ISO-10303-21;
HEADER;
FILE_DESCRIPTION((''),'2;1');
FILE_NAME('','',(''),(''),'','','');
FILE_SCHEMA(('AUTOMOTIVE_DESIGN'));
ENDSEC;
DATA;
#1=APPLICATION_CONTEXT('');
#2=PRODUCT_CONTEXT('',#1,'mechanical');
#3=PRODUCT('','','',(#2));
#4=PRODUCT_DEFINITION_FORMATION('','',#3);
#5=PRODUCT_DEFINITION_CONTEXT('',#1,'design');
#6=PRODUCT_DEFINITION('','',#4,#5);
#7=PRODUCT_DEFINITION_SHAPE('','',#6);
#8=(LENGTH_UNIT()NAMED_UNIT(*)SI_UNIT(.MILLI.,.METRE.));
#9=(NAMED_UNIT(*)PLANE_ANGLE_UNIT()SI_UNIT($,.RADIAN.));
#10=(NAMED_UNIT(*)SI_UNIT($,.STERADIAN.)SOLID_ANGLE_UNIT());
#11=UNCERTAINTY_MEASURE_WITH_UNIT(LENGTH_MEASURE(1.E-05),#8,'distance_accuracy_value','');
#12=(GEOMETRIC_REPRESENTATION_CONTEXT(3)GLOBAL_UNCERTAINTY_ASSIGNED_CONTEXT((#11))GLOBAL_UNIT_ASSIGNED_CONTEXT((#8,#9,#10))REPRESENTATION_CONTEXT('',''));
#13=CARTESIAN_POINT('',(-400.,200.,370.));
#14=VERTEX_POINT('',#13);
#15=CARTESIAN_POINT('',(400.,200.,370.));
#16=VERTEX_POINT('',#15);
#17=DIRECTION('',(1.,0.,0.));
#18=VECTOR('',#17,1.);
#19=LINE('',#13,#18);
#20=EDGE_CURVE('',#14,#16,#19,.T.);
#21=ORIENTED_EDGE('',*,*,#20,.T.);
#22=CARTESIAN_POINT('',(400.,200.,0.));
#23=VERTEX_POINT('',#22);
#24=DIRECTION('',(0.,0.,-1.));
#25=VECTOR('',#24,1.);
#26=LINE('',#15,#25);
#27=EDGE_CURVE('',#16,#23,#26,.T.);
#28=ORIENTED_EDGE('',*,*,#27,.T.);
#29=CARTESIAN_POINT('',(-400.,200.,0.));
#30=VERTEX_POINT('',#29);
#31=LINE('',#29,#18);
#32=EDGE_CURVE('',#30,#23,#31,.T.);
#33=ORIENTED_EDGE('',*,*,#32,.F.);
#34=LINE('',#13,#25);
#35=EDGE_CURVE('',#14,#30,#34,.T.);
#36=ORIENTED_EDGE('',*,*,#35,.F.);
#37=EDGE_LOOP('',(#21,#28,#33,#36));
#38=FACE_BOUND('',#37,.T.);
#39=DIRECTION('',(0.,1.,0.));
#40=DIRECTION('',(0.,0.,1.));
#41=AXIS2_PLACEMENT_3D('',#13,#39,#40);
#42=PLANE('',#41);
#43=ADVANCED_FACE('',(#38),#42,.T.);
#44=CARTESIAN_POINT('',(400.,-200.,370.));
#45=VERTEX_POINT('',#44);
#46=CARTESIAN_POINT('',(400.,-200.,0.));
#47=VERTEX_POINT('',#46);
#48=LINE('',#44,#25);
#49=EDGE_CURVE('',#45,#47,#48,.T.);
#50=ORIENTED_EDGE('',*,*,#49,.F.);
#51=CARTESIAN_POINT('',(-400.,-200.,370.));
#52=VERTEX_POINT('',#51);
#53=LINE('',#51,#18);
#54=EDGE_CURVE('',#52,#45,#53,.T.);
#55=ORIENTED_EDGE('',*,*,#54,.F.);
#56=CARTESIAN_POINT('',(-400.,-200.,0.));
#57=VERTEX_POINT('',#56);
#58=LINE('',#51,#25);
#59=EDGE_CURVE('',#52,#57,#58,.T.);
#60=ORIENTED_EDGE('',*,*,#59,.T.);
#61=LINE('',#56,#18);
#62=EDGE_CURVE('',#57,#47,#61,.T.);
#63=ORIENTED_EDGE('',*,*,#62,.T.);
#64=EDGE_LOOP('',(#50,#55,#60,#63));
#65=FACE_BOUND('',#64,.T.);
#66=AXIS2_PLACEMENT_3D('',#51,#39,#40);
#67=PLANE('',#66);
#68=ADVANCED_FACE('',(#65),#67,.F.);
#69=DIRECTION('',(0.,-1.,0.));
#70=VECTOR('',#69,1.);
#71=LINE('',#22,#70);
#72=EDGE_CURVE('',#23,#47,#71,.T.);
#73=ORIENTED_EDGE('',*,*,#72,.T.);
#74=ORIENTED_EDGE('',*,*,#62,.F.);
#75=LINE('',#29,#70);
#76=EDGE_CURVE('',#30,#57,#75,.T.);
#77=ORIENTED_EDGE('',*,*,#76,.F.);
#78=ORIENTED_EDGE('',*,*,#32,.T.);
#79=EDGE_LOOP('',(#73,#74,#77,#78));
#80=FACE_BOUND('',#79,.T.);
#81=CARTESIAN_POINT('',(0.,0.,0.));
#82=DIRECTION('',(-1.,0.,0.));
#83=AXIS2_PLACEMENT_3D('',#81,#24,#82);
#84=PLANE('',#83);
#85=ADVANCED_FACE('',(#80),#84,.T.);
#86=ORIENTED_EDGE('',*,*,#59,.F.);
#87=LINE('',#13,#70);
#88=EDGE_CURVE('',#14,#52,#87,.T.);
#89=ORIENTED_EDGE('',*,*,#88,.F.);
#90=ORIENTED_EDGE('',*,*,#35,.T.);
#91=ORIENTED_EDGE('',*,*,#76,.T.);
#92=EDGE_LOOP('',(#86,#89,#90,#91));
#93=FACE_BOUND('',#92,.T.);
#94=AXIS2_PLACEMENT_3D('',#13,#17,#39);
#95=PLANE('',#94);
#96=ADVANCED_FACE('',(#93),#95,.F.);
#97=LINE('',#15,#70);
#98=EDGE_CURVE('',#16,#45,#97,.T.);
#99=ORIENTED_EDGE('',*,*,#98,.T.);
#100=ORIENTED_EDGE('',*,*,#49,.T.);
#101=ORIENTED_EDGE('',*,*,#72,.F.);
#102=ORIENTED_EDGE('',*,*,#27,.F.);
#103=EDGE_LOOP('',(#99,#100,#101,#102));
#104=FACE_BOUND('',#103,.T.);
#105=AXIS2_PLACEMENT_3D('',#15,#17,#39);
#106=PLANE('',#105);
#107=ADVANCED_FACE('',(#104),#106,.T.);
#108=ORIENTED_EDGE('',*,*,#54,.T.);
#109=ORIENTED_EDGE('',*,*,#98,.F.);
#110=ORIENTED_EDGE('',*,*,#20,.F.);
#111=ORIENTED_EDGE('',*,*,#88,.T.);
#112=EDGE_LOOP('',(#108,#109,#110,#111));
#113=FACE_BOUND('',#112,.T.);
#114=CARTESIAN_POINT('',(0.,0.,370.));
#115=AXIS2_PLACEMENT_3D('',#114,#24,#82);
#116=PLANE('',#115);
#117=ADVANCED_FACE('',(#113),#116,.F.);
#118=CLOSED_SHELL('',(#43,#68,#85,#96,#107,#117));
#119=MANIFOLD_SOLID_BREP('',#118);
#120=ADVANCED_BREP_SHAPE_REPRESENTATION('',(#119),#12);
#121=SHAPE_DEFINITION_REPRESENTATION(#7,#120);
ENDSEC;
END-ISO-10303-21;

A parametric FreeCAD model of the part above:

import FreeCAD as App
import Part
import Sketcher
Q = App.Units.Quantity

doc = App.newDocument("Part")
body = doc.addObject("PartDesign::Body", "Body")

# Sketch on XY plane
sketch1 = body.newObject("Sketcher::SketchObject", "Sketch")
sketch1.AttachmentSupport = (doc.getObject("XY_Plane"), [""])
sketch1.MapMode = "FlatFace"
sketch1.addGeometry(Part.LineSegment(App.Vector(-400, 200, 0), App.Vector(-400, -200, 0)), False)
sketch1.addGeometry(Part.LineSegment(App.Vector(-400, -200, 0), App.Vector(400, -200, 0)), False)
sketch1.addGeometry(Part.LineSegment(App.Vector(400, -200, 0), App.Vector(400, 200, 0)), False)
sketch1.addGeometry(Part.LineSegment(App.Vector(400, 200, 0), App.Vector(-400, 200, 0)), False)
sketch1.addConstraint(Sketcher.Constraint("Coincident", 0, 2, 1, 1))
sketch1.addConstraint(Sketcher.Constraint("Coincident", 1, 2, 2, 1))
sketch1.addConstraint(Sketcher.Constraint("Coincident", 2, 2, 3, 1))
sketch1.addConstraint(Sketcher.Constraint("Coincident", 3, 2, 0, 1))
sketch1.addConstraint(Sketcher.Constraint("Vertical", 0))
sketch1.addConstraint(Sketcher.Constraint("Horizontal", 1))
sketch1.addConstraint(Sketcher.Constraint("Vertical", 2))
sketch1.addConstraint(Sketcher.Constraint("Horizontal", 3))
sketch1.addConstraint(Sketcher.Constraint("Symmetric", 0, 2, 2, 2, -1, 1))
sketch1.addConstraint(Sketcher.Constraint("DistanceX", 1, 1, 1, 2, Q("800 mm")))
sketch1.addConstraint(Sketcher.Constraint("DistanceY", 0, 2, 0, 1, Q("400 mm")))
pad1 = body.newObject("PartDesign::Pad", "Pad")
pad1.Profile = sketch1
pad1.Length = 370

doc.recompute()
